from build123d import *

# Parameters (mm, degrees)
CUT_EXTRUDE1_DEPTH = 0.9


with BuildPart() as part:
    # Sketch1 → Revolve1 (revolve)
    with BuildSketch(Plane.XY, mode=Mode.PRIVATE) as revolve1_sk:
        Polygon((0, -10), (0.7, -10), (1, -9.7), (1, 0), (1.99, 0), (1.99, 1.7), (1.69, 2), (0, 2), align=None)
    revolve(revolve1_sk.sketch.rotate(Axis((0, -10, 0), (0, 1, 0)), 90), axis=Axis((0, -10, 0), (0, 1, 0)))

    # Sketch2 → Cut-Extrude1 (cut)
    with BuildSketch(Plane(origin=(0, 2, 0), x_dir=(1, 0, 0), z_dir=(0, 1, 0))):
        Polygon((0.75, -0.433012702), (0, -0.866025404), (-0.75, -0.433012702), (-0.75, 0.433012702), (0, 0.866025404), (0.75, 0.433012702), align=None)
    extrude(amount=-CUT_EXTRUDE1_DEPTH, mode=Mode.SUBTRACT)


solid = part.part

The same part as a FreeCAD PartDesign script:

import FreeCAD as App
import Part
import Sketcher
Q = App.Units.Quantity

doc = App.newDocument("Part")
body = doc.addObject("PartDesign::Body", "Body")

# Sketch on XY plane
sketch1 = doc.addObject("Sketcher::SketchObject", "Sketch")
body.addObject(sketch1)
sketch1.AttachmentSupport = (doc.XY_Plane, [""])
sketch1.MapMode = "FlatFace"
sketch1.addGeometry([
    Part.LineSegment(App.Vector(0, -10, 0), App.Vector(0.7, -10, 0)),  # 0
    Part.LineSegment(App.Vector(0.7, -10, 0), App.Vector(1, -9.7, 0)),  # 1
    Part.LineSegment(App.Vector(1, -9.7, 0), App.Vector(1, 0, 0)),  # 2
    Part.LineSegment(App.Vector(1, 0, 0), App.Vector(1.99, 0, 0)),  # 3
    Part.LineSegment(App.Vector(1.99, 0, 0), App.Vector(1.99, 1.7, 0)),  # 4
    Part.LineSegment(App.Vector(1.99, 1.7, 0), App.Vector(1.69, 2, 0)),  # 5
    Part.LineSegment(App.Vector(1.69, 2, 0), App.Vector(0, 2, 0)),  # 6
    Part.LineSegment(App.Vector(0, 2, 0), App.Vector(0, -10, 0)),  # 7
], False)
sketch1.addConstraint([
    Sketcher.Constraint("Coincident", 0, 2, 1, 1),
    Sketcher.Constraint("Coincident", 1, 2, 2, 1),
    Sketcher.Constraint("Coincident", 2, 2, 3, 1),
    Sketcher.Constraint("Coincident", 3, 2, 4, 1),
    Sketcher.Constraint("Coincident", 4, 2, 5, 1),
    Sketcher.Constraint("Coincident", 5, 2, 6, 1),
    Sketcher.Constraint("Coincident", 6, 2, 7, 1),
    Sketcher.Constraint("Coincident", 7, 2, 0, 1),
    Sketcher.Constraint("Horizontal", 0),
    Sketcher.Constraint("Vertical", 2),
    Sketcher.Constraint("Horizontal", 3),
    Sketcher.Constraint("Vertical", 4),
    Sketcher.Constraint("Horizontal", 6),
    Sketcher.Constraint("Vertical", 7),
    Sketcher.Constraint("PointOnObject", 2, 2, -1),
    Sketcher.Constraint("PointOnObject", 6, 2, -2),
    Sketcher.Constraint("Perpendicular", 1, 5),
    Sketcher.Constraint("Equal", 1, 5),
    Sketcher.Constraint("DistanceY", 7, 2, 7, 1, Q("12 mm")),
    Sketcher.Constraint("Angle", 1, Q("45 deg")),
    Sketcher.Constraint("DistanceX", 0, 1, 0, 2, Q("0.7 mm")),
    Sketcher.Constraint("DistanceY", 2, 1, 2, 2, Q("9.7 mm")),
    Sketcher.Constraint("DistanceY", 4, 1, 4, 2, Q("1.7 mm")),
    Sketcher.Constraint("DistanceX", 3, 1, 3, 2, Q("0.99 mm")),
])
revolution = doc.addObject("PartDesign::Revolution", "Revolution")
body.addObject(revolution)
revolution.Profile = sketch1
revolution.ReferenceAxis = (sketch1, ["V_Axis"])
revolution.Angle = 360

# Sketch on XZ plane
sketch2 = doc.addObject("Sketcher::SketchObject", "Sketch001")
body.addObject(sketch2)
sketch2.AttachmentSupport = (doc.XZ_Plane, [""])
sketch2.MapMode = "FlatFace"
sketch2.AttachmentOffset = App.Placement(App.Vector(0, 0, -2), App.Rotation())
sketch2.addGeometry([
    Part.LineSegment(App.Vector(0, 0.866025, 0), App.Vector(0.75, 0.433013, 0)),  # 0
    Part.LineSegment(App.Vector(0.75, 0.433013, 0), App.Vector(0.75, -0.433013, 0)),  # 1
    Part.LineSegment(App.Vector(0.75, -0.433013, 0), App.Vector(0, -0.866025, 0)),  # 2
    Part.LineSegment(App.Vector(0, -0.866025, 0), App.Vector(-0.75, -0.433013, 0)),  # 3
    Part.LineSegment(App.Vector(-0.75, -0.433013, 0), App.Vector(-0.75, 0.433013, 0)),  # 4
    Part.LineSegment(App.Vector(-0.75, 0.433013, 0), App.Vector(0, 0.866025, 0)),  # 5
], False)
sketch2.addConstraint([
    Sketcher.Constraint("Coincident", 0, 2, 1, 1),
    Sketcher.Constraint("Coincident", 1, 2, 2, 1),
    Sketcher.Constraint("Coincident", 2, 2, 3, 1),
    Sketcher.Constraint("Coincident", 3, 2, 4, 1),
    Sketcher.Constraint("Coincident", 4, 2, 5, 1),
    Sketcher.Constraint("Coincident", 5, 2, 0, 1),
    Sketcher.Constraint("Vertical", 1),
    Sketcher.Constraint("Vertical", 4),
    Sketcher.Constraint("Symmetric", 0, 2, 3, 2, -1, 1),
    Sketcher.Constraint("Symmetric", 2, 2, 5, 2, -1, 1),
    Sketcher.Constraint("PointOnObject", 2, 2, -2),
    Sketcher.Constraint("Parallel", 2, 5),
    Sketcher.Constraint("Horizontal", 1, 2, 3, 2),
    Sketcher.Constraint("Angle", 0, Q("-30 deg")),
    Sketcher.Constraint("DistanceX", 3, 2, 1, 2, Q("1.5 mm")),
    Sketcher.Constraint("DistanceY", 1, 2, 1, 1, Q("0.866025 mm")),
])
pocket1 = doc.addObject("PartDesign::Pocket", "Pocket")
body.addObject(pocket1)
pocket1.Profile = sketch2
pocket1.Length = 0.9
pocket1.Reversed = True

doc.recompute()
